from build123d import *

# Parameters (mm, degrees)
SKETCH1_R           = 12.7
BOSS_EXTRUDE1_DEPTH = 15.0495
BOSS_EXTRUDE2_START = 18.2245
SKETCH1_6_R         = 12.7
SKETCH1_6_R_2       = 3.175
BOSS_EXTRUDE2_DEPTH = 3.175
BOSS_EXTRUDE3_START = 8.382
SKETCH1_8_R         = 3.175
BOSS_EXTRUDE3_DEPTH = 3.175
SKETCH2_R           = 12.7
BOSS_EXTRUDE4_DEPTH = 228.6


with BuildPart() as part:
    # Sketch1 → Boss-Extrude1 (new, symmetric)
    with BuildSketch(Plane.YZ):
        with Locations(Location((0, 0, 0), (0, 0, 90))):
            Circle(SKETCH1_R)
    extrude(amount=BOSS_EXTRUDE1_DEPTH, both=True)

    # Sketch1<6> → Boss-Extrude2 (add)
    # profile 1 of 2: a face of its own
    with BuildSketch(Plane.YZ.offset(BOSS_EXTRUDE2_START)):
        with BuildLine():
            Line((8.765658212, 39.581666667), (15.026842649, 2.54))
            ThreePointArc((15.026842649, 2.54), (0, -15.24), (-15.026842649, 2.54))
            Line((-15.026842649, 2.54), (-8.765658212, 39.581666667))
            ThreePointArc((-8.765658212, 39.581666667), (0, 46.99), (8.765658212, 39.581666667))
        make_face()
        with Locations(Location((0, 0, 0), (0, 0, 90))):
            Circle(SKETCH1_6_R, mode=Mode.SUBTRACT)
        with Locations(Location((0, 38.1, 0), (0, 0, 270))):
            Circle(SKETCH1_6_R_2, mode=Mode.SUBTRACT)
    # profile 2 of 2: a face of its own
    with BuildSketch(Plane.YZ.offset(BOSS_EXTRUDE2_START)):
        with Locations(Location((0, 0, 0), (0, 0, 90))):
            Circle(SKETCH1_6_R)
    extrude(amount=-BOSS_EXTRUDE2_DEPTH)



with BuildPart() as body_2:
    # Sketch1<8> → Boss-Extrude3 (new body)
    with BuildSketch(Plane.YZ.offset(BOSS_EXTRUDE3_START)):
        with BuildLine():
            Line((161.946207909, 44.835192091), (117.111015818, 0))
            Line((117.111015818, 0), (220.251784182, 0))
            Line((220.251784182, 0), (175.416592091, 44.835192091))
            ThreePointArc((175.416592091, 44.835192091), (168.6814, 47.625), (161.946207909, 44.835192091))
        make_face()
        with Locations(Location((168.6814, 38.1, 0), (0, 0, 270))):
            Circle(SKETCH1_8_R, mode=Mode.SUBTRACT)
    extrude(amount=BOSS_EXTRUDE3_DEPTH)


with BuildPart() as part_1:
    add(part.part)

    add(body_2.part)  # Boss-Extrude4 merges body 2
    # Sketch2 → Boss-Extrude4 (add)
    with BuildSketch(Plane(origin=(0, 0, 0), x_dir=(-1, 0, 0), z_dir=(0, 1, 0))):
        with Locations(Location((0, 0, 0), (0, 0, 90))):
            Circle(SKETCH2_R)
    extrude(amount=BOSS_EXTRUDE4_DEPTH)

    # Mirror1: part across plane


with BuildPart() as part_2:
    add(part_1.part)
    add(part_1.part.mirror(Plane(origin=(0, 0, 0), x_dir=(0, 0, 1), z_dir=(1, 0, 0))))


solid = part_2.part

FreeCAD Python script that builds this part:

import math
import FreeCAD as App
import Part
import Sketcher
Q = App.Units.Quantity

doc = App.newDocument("Part")
body = doc.addObject("PartDesign::Body", "Body")

sketch1 = body.newObject("Sketcher::SketchObject", "Sketch")
sketch1.AttachmentSupport = (doc.getObject("YZ_Plane"), [""])
sketch1.MapMode = "FlatFace"
sketch1.addGeometry(Part.Circle(App.Vector(0, 0, 0), App.Vector(0, 0, 1), 13), False)
sketch1.addConstraint(Sketcher.Constraint("Coincident", 0, 3, -1, 1))
sketch1.addConstraint(Sketcher.Constraint("Diameter", 0, Q("1 in")))
pad1 = body.newObject("PartDesign::Pad", "Pad")
pad1.Profile = sketch1
pad1.Length = Q("1.185 in")
pad1.Midplane = True

sketch2 = body.newObject("Sketcher::SketchObject", "Sketch001")
sketch2.AttachmentSupport = (doc.getObject("YZ_Plane"), [""])
sketch2.MapMode = "FlatFace"
sketch2.AttachmentOffset = App.Placement(App.Vector(0, 0, 0.7175 * 25.4), App.Rotation())
sketch2.addGeometry(Part.LineSegment(App.Vector(15, 2.5, 0), App.Vector(8.8, 39.6, 0)), False)
sketch2.addGeometry(Part.ArcOfCircle(Part.Circle(App.Vector(0, 38.1, 0), App.Vector(0, 0, 1), 8.9), math.radians(10), math.radians(170)), False)
sketch2.addGeometry(Part.LineSegment(App.Vector(-8.8, 39.6, 0), App.Vector(-15, 2.5, 0)), False)
sketch2.addGeometry(Part.ArcOfCircle(Part.Circle(App.Vector(0, 0, 0), App.Vector(0, 0, 1), 15.2), math.radians(170), math.radians(370)), False)
sketch2.addGeometry(Part.Circle(App.Vector(0, 38.1, 0), App.Vector(0, 0, 1), 3.2), False)
sketch2.addConstraint(Sketcher.Constraint("Tangent", 0, 2, 1, 1))
sketch2.addConstraint(Sketcher.Constraint("Tangent", 1, 2, 2, 1))
sketch2.addConstraint(Sketcher.Constraint("Tangent", 2, 2, 3, 1))
sketch2.addConstraint(Sketcher.Constraint("Tangent", 3, 2, 0, 1))
sketch2.addConstraint(Sketcher.Constraint("Coincident", 3, 3, -1, 1))
sketch2.addConstraint(Sketcher.Constraint("Coincident", 4, 3, 1, 3))
sketch2.addConstraint(Sketcher.Constraint("PointOnObject", 1, 3, -2))
sketch2.addConstraint(Sketcher.Constraint("Radius", 3, Q("0.6 in")))
sketch2.addConstraint(Sketcher.Constraint("Diameter", 4, Q("0.25 in")))
sketch2.addConstraint(Sketcher.Constraint("Radius", 1, Q("0.35 in")))
sketch2.addConstraint(Sketcher.Constraint("DistanceY", -1, 1, 1, 3, Q("1.5 in")))
pad2 = body.newObject("PartDesign::Pad", "Pad001")
pad2.Profile = sketch2
pad2.Length = Q("0.125 in")
pad2.Reversed = True
body2 = doc.addObject("PartDesign::Body", "Body001")

sketch3 = body2.newObject("Sketcher::SketchObject", "Sketch002")
sketch3.AttachmentSupport = (doc.getObject("YZ_Plane001"), [""])
sketch3.MapMode = "FlatFace"
sketch3.AttachmentOffset = App.Placement(App.Vector(0, 0, 0.33 * 25.4), App.Rotation())
sketch3.addGeometry(Part.LineSegment(App.Vector(161.9, 44.8, 0), App.Vector(117.1, 0, 0)), False)
sketch3.addGeometry(Part.LineSegment(App.Vector(117.1, 0, 0), App.Vector(220.3, 0, 0)), False)
sketch3.addGeometry(Part.LineSegment(App.Vector(220.3, 0, 0), App.Vector(175.4, 44.8, 0)), False)
sketch3.addGeometry(Part.ArcOfCircle(Part.Circle(App.Vector(168.7, 38.1, 0), App.Vector(0, 0, 1), 9.5), math.radians(45), math.radians(135)), False)
sketch3.addGeometry(Part.Circle(App.Vector(168.7, 38.1, 0), App.Vector(0, 0, 1), 3.2), False)
sketch3.addConstraint(Sketcher.Constraint("Coincident", 0, 2, 1, 1))
sketch3.addConstraint(Sketcher.Constraint("Coincident", 1, 2, 2, 1))
sketch3.addConstraint(Sketcher.Constraint("Tangent", 2, 2, 3, 1))
sketch3.addConstraint(Sketcher.Constraint("Tangent", 3, 2, 0, 1))
sketch3.addConstraint(Sketcher.Constraint("Horizontal", 1))
sketch3.addConstraint(Sketcher.Constraint("Coincident", 4, 3, 3, 3))
sketch3.addConstraint(Sketcher.Constraint("PointOnObject", 0, 2, -1))
sketch3.addConstraint(Sketcher.Constraint("Perpendicular", 0, 2))
sketch3.addConstraint(Sketcher.Constraint("Horizontal", 2, 2, 3, 2))
sketch3.addConstraint(Sketcher.Constraint("Diameter", 4, Q("0.25 in")))
sketch3.addConstraint(Sketcher.Constraint("Radius", 3, Q("0.375 in")))
sketch3.addConstraint(Sketcher.Constraint("DistanceY", -1, 1, 3, 3, Q("1.5 in")))
sketch3.addConstraint(Sketcher.Constraint("DistanceX", -1, 1, 3, 3, Q("6.641 in")))
pad3 = body2.newObject("PartDesign::Pad", "Pad002")
pad3.Profile = sketch3
pad3.Length = Q("0.125 in")
body.AllowCompound = True
doc.recompute()

boolean = body.newObject("PartDesign::Boolean", "Boolean")
boolean.Type = "Fuse"
boolean.addObjects([body2])

sketch4 = body.newObject("Sketcher::SketchObject", "Sketch003")
sketch4.AttachmentSupport = (doc.getObject("XZ_Plane"), [""])
sketch4.MapMode = "FlatFace"
sketch4.addGeometry(Part.Circle(App.Vector(0, 0, 0), App.Vector(0, 0, 1), 13), False)
sketch4.addConstraint(Sketcher.Constraint("Coincident", 0, 3, -1, 1))
sketch4.addConstraint(Sketcher.Constraint("Diameter", 0, Q("1 in")))
pad4 = body.newObject("PartDesign::Pad", "Pad003")
pad4.Profile = sketch4
pad4.Length = Q("9 in")
pad4.Reversed = True
body3 = doc.addObject("PartDesign::Body", "Body002")
doc.recompute()

body3.BaseFeature = body
doc.recompute()

mirroring = doc.addObject("Part::Mirroring", "Mirroring")
mirroring.Source = body
mirroring.Base = App.Vector(0, 0, 0)
mirroring.Normal = App.Vector(1, 0, 0)
body4 = doc.addObject("PartDesign::Body", "Body003")
body4.BaseFeature = mirroring
boolean2 = body3.newObject("PartDesign::Boolean", "Boolean001")
boolean2.Type = "Fuse"
boolean2.addObjects([body4])
doc.recompute()
mirroring.Visibility = False

doc.recompute()
